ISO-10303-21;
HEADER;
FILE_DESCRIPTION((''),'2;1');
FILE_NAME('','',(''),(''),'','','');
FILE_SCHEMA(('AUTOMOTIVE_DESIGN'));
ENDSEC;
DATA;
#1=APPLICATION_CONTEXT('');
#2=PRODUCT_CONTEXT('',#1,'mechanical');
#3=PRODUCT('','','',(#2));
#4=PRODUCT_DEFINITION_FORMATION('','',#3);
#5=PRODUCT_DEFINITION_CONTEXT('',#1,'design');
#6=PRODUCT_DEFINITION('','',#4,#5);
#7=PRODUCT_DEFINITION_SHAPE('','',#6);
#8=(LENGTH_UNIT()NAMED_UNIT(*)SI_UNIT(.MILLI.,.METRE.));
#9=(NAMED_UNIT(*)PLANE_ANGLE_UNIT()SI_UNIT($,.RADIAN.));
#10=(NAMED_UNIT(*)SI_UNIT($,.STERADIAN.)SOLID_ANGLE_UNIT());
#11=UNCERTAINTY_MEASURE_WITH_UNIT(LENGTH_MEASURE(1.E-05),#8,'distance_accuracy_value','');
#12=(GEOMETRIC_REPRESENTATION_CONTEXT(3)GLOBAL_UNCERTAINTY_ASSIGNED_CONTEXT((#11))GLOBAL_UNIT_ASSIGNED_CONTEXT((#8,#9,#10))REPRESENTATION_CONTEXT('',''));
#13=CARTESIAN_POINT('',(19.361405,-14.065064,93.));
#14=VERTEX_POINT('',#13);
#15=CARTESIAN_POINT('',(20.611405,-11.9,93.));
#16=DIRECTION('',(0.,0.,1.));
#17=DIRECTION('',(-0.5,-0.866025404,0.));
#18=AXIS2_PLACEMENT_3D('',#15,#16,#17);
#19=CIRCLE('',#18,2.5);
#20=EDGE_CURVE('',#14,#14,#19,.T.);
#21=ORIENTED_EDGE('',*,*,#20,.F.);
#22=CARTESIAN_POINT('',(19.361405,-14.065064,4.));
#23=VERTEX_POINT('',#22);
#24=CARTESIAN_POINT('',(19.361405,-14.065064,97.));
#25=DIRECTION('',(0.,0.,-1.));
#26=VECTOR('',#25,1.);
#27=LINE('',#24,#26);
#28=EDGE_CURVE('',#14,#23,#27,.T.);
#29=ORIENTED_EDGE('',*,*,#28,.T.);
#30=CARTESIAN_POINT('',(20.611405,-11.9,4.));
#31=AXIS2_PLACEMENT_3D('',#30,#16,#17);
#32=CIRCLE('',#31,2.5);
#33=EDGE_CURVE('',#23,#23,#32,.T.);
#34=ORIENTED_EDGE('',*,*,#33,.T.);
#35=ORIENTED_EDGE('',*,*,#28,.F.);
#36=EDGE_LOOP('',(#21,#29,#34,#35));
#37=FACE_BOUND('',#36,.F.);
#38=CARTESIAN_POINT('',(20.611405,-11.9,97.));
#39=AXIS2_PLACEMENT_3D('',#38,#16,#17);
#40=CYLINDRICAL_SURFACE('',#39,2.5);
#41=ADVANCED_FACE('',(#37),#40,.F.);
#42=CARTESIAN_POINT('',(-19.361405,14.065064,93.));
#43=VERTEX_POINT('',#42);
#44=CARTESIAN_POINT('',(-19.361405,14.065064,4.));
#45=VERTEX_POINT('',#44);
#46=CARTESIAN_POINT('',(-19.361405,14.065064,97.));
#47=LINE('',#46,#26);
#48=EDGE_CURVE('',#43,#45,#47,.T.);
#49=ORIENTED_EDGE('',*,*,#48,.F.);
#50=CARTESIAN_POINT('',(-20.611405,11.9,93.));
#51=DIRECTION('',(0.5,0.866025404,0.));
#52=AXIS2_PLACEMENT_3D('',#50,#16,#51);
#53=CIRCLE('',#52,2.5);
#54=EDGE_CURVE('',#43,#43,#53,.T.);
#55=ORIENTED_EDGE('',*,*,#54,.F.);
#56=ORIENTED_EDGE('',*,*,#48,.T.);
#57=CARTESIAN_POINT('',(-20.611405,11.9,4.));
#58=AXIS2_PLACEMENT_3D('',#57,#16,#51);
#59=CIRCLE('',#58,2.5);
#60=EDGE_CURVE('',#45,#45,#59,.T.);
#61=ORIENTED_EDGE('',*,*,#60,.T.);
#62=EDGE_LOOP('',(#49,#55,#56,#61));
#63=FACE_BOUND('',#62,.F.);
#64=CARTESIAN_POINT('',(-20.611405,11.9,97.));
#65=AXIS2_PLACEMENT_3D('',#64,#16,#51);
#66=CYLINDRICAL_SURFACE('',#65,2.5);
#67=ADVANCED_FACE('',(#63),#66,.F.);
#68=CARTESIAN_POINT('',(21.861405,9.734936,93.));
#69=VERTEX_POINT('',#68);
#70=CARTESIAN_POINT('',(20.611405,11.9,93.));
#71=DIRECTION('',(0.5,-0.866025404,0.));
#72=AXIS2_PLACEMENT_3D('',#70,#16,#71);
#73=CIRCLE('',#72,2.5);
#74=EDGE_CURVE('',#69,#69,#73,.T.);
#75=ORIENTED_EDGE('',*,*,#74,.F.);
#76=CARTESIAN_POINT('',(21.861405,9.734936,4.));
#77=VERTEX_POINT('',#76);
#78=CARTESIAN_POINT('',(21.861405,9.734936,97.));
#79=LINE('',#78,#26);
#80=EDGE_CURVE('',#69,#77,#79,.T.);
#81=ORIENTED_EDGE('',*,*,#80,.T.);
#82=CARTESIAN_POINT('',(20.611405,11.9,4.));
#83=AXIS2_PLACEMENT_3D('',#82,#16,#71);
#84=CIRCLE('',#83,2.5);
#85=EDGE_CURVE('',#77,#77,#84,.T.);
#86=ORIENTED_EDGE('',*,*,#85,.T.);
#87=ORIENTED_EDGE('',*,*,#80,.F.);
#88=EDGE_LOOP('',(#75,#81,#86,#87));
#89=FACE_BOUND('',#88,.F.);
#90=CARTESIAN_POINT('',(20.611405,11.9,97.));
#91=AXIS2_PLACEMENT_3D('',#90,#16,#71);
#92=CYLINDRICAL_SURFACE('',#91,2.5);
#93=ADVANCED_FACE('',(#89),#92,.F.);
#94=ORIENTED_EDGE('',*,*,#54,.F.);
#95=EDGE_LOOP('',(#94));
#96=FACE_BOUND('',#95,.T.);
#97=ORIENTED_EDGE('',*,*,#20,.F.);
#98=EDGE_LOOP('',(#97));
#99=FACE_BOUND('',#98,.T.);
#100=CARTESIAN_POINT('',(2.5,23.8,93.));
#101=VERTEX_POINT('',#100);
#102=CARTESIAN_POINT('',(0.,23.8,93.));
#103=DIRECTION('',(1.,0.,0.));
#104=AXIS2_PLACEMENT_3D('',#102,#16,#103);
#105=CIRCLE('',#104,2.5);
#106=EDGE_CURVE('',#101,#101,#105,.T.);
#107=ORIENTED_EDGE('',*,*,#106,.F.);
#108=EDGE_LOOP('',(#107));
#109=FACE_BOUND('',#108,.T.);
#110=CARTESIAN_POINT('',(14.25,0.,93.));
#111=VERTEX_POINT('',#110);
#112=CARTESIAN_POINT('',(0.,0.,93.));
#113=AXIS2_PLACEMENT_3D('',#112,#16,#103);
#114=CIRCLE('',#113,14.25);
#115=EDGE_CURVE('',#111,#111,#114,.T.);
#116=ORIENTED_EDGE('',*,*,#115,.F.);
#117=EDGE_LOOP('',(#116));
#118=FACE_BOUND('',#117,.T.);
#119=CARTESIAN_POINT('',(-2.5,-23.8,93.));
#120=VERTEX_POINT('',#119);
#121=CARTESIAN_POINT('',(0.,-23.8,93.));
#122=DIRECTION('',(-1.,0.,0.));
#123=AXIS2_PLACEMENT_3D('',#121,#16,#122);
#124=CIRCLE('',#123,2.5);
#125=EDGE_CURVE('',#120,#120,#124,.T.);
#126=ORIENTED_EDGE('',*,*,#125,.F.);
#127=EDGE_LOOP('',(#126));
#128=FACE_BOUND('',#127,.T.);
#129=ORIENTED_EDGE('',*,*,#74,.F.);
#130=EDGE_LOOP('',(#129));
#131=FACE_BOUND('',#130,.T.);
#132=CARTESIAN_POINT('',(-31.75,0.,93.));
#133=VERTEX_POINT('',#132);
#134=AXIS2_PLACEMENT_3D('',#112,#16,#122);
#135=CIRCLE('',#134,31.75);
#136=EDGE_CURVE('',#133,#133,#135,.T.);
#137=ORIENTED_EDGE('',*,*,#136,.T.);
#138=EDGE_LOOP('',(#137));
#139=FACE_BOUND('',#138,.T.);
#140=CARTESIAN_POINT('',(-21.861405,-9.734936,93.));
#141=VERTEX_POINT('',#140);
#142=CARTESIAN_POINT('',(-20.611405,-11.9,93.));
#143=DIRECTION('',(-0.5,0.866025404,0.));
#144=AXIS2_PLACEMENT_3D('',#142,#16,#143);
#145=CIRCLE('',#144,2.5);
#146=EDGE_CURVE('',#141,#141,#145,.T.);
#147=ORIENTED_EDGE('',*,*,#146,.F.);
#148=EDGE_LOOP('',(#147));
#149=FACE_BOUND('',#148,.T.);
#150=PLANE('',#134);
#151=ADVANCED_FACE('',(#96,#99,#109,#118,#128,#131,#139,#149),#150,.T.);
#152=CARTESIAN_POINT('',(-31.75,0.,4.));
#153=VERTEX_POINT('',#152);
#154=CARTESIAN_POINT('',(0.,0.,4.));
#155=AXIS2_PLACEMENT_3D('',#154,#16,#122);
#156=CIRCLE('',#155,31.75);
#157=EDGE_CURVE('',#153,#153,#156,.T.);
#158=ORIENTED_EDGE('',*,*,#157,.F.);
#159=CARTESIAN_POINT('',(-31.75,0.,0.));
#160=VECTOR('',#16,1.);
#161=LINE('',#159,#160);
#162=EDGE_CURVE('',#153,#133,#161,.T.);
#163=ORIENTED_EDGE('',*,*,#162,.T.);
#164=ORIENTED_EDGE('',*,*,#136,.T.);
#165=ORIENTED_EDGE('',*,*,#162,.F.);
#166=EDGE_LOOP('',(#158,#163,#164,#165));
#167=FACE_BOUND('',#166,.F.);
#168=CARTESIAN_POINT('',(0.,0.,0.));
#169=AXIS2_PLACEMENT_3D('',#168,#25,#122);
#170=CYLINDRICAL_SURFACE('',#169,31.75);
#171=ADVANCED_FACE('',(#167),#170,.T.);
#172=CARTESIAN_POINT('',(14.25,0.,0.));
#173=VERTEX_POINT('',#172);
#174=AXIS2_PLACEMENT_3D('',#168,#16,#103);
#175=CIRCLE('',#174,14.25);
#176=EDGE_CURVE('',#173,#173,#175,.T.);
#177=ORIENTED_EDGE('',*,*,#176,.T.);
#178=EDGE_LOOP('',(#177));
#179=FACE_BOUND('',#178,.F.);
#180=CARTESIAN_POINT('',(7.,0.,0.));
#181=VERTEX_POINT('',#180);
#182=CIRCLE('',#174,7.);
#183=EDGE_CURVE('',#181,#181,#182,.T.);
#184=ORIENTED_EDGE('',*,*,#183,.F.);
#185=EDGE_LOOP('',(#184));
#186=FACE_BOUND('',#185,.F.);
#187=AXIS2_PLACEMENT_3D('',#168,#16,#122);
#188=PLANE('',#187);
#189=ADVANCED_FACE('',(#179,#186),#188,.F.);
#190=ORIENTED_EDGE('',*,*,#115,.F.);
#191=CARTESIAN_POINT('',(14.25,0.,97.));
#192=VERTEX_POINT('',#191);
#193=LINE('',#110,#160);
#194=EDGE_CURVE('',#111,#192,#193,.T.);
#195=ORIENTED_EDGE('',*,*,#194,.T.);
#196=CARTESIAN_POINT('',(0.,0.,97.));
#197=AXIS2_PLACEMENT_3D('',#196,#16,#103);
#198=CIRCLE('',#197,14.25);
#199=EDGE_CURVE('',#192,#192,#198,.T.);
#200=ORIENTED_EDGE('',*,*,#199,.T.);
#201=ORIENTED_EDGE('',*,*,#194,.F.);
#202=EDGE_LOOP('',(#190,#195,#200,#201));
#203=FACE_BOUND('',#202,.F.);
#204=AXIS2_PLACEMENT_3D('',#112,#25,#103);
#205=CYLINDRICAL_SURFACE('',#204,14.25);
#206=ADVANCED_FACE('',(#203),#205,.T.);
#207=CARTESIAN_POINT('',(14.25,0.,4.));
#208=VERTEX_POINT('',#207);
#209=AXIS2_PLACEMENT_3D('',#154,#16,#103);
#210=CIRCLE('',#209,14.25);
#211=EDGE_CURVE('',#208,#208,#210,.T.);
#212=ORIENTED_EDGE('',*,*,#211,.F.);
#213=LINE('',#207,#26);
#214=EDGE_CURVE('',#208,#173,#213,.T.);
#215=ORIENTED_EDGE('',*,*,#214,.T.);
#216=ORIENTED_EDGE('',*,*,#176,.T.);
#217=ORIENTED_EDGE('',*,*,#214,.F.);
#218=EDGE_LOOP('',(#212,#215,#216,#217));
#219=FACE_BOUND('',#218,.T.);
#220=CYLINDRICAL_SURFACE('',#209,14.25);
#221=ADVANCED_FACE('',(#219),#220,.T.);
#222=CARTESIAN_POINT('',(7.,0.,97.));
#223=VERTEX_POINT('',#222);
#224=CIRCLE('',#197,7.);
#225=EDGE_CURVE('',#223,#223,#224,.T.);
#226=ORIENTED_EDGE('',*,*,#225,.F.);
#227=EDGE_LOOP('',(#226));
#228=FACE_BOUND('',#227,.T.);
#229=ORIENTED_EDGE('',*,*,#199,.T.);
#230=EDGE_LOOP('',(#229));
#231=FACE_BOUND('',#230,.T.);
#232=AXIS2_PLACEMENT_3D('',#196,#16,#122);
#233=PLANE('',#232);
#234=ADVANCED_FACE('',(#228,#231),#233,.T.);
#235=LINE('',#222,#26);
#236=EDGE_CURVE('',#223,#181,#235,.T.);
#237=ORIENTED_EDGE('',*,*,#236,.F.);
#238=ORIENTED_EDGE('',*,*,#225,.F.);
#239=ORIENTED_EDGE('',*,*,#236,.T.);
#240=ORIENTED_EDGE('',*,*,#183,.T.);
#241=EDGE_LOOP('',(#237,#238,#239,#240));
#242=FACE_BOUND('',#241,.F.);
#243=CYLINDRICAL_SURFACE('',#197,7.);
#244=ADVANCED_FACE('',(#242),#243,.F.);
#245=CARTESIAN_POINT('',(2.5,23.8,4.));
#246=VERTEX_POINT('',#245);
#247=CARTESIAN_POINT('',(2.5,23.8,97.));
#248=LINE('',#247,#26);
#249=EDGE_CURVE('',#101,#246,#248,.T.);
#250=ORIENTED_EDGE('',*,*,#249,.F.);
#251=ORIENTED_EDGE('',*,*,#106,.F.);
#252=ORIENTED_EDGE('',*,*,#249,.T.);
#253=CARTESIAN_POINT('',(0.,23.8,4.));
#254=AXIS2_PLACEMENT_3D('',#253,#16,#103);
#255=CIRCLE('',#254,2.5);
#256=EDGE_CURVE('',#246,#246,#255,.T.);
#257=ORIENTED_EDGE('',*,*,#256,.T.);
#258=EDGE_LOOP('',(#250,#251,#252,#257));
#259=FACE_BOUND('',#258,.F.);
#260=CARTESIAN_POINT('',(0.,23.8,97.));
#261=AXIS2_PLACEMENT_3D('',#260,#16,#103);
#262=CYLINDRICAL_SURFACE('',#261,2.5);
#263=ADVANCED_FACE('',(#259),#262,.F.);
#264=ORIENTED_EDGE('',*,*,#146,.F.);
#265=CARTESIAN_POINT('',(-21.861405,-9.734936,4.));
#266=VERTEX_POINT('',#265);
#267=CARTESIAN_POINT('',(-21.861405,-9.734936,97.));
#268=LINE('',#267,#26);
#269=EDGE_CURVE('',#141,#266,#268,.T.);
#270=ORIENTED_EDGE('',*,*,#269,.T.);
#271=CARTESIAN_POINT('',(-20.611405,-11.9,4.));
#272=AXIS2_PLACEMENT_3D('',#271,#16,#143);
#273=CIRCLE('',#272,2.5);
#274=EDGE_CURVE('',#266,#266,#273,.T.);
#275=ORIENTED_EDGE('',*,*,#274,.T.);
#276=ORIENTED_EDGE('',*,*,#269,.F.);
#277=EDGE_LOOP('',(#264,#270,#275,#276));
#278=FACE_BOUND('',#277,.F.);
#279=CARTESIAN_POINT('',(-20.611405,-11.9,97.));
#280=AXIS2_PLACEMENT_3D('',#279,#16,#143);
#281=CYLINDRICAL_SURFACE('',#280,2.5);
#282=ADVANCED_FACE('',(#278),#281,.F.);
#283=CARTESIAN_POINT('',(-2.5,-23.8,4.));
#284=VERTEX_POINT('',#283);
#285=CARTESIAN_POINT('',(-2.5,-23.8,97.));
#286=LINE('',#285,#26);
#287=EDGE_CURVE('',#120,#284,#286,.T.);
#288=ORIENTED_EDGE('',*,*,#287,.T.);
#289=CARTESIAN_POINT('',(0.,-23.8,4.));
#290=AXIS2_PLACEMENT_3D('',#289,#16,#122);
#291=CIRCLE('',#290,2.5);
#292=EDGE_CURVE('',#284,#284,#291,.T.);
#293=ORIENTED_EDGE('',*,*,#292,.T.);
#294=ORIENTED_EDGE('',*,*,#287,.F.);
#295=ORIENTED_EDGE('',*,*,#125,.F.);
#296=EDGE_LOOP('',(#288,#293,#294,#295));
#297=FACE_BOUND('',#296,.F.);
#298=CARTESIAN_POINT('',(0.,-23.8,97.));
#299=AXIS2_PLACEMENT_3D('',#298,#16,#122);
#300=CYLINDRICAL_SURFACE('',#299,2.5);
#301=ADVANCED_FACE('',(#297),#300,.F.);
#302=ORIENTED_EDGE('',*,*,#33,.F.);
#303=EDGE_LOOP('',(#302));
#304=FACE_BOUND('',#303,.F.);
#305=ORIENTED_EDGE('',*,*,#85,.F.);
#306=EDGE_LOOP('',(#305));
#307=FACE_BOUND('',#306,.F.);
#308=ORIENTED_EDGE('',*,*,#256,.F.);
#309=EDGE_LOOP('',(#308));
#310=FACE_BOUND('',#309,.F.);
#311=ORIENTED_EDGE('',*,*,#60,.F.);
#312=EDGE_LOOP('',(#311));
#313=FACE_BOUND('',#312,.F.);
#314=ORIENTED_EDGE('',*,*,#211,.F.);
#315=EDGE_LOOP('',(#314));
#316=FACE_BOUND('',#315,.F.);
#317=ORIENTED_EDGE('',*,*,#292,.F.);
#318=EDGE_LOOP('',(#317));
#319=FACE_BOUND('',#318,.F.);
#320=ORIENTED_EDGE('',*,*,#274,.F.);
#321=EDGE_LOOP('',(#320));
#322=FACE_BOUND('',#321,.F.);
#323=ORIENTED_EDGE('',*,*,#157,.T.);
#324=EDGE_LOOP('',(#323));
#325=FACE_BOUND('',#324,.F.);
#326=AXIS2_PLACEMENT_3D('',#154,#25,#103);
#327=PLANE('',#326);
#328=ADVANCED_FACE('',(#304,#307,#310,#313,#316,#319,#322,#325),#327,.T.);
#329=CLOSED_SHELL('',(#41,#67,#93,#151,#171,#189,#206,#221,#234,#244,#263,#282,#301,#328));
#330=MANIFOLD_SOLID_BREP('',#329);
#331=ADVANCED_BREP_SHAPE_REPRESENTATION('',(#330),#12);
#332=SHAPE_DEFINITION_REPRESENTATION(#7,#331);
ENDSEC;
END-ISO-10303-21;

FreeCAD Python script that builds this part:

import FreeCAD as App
import Part
import Sketcher

V = App.Vector
Q = App.Units.Quantity

doc = App.newDocument("Part")
params = doc.addObject("Spreadsheet::Sheet", "Params")
for row, (alias, value) in enumerate([
    ("sketch1_diameter", "63.5 mm"),
    ("pad1_length", "97 mm"),
    ("sketch2_diameter", "14 mm"),
    ("sketch3_diameter", "5 mm"),
    ("sketch4_diameter", "63.5 mm"),
    ("sketch4_diameter2", "28.5 mm"),
    ("pocket3_length", "4 mm"),
], start=1):
    params.set(f"A{row}", alias)
    params.set(f"B{row}", "=" + value)
    params.setAlias(f"B{row}", alias)

body = doc.addObject("PartDesign::Body", "Body")

sketch1 = body.newObject("Sketcher::SketchObject", "Sketch")
sketch1.AttachmentSupport = (doc.getObject("XY_Plane"), [""])
sketch1.MapMode = "FlatFace"
sketch1.addGeometry(Part.Circle(V(0, 0, 0), V(0, 0, 1), 32), False)
sketch1.addConstraint(Sketcher.Constraint("Coincident", 0, 3, -1, 1))
sketch1.addConstraint(Sketcher.Constraint("Diameter", 0, Q("63.5 mm")))
sketch1.setExpression("Constraints[1]", "Params.sketch1_diameter")
pad1 = body.newObject("PartDesign::Pad", "Pad")
pad1.Profile = sketch1
pad1.setExpression("Length", "Params.pad1_length")

sketch2 = body.newObject("Sketcher::SketchObject", "Sketch001")
sketch2.AttachmentSupport = (doc.getObject("XY_Plane"), [""])
sketch2.MapMode = "FlatFace"
sketch2.AttachmentOffset = App.Placement(V(0, 0, 97), App.Rotation())
sketch2.addGeometry(Part.Circle(V(0, 0, 0), V(0, 0, 1), 7), False)
sketch2.addConstraint(Sketcher.Constraint("Coincident", 0, 3, -1, 1))
sketch2.addConstraint(Sketcher.Constraint("Diameter", 0, Q("14 mm")))
sketch2.setExpression("Constraints[1]", "Params.sketch2_diameter")
pocket1 = body.newObject("PartDesign::Pocket", "Pocket")
pocket1.Profile = sketch2
pocket1.Type = "ThroughAll"

sketch3 = body.newObject("Sketcher::SketchObject", "Sketch002")
sketch3.AttachmentSupport = (doc.getObject("XY_Plane"), [""])
sketch3.MapMode = "FlatFace"
sketch3.AttachmentOffset = App.Placement(V(0, 0, 97), App.Rotation())
sketch3.addGeometry(Part.Circle(V(0, 23.8, 0), V(0, 0, 1), 2.5), False)
sketch3.addConstraint(Sketcher.Constraint("PointOnObject", 0, 3, -2))
sketch3.addConstraint(Sketcher.Constraint("Diameter", 0, Q("5 mm")))
sketch3.addConstraint(Sketcher.Constraint("DistanceY", -1, 1, 0, 3, Q("23.8 mm")))
sketch3.setExpression("Constraints[1]", "Params.sketch3_diameter")
pocket2 = body.newObject("PartDesign::Pocket", "Pocket001")
pocket2.Profile = sketch3
pocket2.Type = "ThroughAll"
doc.recompute()

polarpattern = body.newObject("PartDesign::PolarPattern", "PolarPattern")
polarpattern.Originals = [pocket2]
polarpattern.Axis = (doc.getObject("Z_Axis"), [""])
polarpattern.Angle = 360
polarpattern.Occurrences = 6
body.Tip = polarpattern

sketch4 = body.newObject("Sketcher::SketchObject", "Sketch003")
sketch4.AttachmentSupport = (doc.getObject("XY_Plane"), [""])
sketch4.MapMode = "FlatFace"
sketch4.AttachmentOffset = App.Placement(V(0, 0, 93), App.Rotation())
sketch4.addGeometry(Part.Circle(V(0, 0, 0), V(0, 0, 1), 32), False)
sketch4.addGeometry(Part.Circle(V(0, 0, 0), V(0, 0, 1), 14), False)
sketch4.addConstraint(Sketcher.Constraint("Coincident", 0, 3, -1, 1))
sketch4.addConstraint(Sketcher.Constraint("Coincident", 1, 3, -1, 1))
sketch4.addConstraint(Sketcher.Constraint("Diameter", 0, Q("63.5 mm")))
sketch4.addConstraint(Sketcher.Constraint("Diameter", 1, Q("28.5 mm")))
sketch4.setExpression("Constraints[2]", "Params.sketch4_diameter")
sketch4.setExpression("Constraints[3]", "Params.sketch4_diameter2")
pocket3 = body.newObject("PartDesign::Pocket", "Pocket002")
pocket3.Profile = sketch4
pocket3.setExpression("Length", "Params.pocket3_length")
pocket3.Reversed = True
doc.recompute()

datumplane = body.newObject("PartDesign::Plane", "DatumPlane")
datumplane.AttachmentSupport = (doc.getObject("XY_Plane"), [""])
datumplane.MapMode = "FlatFace"
datumplane.AttachmentOffset = App.Placement(V(0, 0, 48.5), App.Rotation())
mirrored = body.newObject("PartDesign::Mirrored", "Mirrored")
mirrored.Originals = [pocket3]
mirrored.MirrorPlane = (datumplane, [""])
body.Tip = mirrored

doc.recompute()
